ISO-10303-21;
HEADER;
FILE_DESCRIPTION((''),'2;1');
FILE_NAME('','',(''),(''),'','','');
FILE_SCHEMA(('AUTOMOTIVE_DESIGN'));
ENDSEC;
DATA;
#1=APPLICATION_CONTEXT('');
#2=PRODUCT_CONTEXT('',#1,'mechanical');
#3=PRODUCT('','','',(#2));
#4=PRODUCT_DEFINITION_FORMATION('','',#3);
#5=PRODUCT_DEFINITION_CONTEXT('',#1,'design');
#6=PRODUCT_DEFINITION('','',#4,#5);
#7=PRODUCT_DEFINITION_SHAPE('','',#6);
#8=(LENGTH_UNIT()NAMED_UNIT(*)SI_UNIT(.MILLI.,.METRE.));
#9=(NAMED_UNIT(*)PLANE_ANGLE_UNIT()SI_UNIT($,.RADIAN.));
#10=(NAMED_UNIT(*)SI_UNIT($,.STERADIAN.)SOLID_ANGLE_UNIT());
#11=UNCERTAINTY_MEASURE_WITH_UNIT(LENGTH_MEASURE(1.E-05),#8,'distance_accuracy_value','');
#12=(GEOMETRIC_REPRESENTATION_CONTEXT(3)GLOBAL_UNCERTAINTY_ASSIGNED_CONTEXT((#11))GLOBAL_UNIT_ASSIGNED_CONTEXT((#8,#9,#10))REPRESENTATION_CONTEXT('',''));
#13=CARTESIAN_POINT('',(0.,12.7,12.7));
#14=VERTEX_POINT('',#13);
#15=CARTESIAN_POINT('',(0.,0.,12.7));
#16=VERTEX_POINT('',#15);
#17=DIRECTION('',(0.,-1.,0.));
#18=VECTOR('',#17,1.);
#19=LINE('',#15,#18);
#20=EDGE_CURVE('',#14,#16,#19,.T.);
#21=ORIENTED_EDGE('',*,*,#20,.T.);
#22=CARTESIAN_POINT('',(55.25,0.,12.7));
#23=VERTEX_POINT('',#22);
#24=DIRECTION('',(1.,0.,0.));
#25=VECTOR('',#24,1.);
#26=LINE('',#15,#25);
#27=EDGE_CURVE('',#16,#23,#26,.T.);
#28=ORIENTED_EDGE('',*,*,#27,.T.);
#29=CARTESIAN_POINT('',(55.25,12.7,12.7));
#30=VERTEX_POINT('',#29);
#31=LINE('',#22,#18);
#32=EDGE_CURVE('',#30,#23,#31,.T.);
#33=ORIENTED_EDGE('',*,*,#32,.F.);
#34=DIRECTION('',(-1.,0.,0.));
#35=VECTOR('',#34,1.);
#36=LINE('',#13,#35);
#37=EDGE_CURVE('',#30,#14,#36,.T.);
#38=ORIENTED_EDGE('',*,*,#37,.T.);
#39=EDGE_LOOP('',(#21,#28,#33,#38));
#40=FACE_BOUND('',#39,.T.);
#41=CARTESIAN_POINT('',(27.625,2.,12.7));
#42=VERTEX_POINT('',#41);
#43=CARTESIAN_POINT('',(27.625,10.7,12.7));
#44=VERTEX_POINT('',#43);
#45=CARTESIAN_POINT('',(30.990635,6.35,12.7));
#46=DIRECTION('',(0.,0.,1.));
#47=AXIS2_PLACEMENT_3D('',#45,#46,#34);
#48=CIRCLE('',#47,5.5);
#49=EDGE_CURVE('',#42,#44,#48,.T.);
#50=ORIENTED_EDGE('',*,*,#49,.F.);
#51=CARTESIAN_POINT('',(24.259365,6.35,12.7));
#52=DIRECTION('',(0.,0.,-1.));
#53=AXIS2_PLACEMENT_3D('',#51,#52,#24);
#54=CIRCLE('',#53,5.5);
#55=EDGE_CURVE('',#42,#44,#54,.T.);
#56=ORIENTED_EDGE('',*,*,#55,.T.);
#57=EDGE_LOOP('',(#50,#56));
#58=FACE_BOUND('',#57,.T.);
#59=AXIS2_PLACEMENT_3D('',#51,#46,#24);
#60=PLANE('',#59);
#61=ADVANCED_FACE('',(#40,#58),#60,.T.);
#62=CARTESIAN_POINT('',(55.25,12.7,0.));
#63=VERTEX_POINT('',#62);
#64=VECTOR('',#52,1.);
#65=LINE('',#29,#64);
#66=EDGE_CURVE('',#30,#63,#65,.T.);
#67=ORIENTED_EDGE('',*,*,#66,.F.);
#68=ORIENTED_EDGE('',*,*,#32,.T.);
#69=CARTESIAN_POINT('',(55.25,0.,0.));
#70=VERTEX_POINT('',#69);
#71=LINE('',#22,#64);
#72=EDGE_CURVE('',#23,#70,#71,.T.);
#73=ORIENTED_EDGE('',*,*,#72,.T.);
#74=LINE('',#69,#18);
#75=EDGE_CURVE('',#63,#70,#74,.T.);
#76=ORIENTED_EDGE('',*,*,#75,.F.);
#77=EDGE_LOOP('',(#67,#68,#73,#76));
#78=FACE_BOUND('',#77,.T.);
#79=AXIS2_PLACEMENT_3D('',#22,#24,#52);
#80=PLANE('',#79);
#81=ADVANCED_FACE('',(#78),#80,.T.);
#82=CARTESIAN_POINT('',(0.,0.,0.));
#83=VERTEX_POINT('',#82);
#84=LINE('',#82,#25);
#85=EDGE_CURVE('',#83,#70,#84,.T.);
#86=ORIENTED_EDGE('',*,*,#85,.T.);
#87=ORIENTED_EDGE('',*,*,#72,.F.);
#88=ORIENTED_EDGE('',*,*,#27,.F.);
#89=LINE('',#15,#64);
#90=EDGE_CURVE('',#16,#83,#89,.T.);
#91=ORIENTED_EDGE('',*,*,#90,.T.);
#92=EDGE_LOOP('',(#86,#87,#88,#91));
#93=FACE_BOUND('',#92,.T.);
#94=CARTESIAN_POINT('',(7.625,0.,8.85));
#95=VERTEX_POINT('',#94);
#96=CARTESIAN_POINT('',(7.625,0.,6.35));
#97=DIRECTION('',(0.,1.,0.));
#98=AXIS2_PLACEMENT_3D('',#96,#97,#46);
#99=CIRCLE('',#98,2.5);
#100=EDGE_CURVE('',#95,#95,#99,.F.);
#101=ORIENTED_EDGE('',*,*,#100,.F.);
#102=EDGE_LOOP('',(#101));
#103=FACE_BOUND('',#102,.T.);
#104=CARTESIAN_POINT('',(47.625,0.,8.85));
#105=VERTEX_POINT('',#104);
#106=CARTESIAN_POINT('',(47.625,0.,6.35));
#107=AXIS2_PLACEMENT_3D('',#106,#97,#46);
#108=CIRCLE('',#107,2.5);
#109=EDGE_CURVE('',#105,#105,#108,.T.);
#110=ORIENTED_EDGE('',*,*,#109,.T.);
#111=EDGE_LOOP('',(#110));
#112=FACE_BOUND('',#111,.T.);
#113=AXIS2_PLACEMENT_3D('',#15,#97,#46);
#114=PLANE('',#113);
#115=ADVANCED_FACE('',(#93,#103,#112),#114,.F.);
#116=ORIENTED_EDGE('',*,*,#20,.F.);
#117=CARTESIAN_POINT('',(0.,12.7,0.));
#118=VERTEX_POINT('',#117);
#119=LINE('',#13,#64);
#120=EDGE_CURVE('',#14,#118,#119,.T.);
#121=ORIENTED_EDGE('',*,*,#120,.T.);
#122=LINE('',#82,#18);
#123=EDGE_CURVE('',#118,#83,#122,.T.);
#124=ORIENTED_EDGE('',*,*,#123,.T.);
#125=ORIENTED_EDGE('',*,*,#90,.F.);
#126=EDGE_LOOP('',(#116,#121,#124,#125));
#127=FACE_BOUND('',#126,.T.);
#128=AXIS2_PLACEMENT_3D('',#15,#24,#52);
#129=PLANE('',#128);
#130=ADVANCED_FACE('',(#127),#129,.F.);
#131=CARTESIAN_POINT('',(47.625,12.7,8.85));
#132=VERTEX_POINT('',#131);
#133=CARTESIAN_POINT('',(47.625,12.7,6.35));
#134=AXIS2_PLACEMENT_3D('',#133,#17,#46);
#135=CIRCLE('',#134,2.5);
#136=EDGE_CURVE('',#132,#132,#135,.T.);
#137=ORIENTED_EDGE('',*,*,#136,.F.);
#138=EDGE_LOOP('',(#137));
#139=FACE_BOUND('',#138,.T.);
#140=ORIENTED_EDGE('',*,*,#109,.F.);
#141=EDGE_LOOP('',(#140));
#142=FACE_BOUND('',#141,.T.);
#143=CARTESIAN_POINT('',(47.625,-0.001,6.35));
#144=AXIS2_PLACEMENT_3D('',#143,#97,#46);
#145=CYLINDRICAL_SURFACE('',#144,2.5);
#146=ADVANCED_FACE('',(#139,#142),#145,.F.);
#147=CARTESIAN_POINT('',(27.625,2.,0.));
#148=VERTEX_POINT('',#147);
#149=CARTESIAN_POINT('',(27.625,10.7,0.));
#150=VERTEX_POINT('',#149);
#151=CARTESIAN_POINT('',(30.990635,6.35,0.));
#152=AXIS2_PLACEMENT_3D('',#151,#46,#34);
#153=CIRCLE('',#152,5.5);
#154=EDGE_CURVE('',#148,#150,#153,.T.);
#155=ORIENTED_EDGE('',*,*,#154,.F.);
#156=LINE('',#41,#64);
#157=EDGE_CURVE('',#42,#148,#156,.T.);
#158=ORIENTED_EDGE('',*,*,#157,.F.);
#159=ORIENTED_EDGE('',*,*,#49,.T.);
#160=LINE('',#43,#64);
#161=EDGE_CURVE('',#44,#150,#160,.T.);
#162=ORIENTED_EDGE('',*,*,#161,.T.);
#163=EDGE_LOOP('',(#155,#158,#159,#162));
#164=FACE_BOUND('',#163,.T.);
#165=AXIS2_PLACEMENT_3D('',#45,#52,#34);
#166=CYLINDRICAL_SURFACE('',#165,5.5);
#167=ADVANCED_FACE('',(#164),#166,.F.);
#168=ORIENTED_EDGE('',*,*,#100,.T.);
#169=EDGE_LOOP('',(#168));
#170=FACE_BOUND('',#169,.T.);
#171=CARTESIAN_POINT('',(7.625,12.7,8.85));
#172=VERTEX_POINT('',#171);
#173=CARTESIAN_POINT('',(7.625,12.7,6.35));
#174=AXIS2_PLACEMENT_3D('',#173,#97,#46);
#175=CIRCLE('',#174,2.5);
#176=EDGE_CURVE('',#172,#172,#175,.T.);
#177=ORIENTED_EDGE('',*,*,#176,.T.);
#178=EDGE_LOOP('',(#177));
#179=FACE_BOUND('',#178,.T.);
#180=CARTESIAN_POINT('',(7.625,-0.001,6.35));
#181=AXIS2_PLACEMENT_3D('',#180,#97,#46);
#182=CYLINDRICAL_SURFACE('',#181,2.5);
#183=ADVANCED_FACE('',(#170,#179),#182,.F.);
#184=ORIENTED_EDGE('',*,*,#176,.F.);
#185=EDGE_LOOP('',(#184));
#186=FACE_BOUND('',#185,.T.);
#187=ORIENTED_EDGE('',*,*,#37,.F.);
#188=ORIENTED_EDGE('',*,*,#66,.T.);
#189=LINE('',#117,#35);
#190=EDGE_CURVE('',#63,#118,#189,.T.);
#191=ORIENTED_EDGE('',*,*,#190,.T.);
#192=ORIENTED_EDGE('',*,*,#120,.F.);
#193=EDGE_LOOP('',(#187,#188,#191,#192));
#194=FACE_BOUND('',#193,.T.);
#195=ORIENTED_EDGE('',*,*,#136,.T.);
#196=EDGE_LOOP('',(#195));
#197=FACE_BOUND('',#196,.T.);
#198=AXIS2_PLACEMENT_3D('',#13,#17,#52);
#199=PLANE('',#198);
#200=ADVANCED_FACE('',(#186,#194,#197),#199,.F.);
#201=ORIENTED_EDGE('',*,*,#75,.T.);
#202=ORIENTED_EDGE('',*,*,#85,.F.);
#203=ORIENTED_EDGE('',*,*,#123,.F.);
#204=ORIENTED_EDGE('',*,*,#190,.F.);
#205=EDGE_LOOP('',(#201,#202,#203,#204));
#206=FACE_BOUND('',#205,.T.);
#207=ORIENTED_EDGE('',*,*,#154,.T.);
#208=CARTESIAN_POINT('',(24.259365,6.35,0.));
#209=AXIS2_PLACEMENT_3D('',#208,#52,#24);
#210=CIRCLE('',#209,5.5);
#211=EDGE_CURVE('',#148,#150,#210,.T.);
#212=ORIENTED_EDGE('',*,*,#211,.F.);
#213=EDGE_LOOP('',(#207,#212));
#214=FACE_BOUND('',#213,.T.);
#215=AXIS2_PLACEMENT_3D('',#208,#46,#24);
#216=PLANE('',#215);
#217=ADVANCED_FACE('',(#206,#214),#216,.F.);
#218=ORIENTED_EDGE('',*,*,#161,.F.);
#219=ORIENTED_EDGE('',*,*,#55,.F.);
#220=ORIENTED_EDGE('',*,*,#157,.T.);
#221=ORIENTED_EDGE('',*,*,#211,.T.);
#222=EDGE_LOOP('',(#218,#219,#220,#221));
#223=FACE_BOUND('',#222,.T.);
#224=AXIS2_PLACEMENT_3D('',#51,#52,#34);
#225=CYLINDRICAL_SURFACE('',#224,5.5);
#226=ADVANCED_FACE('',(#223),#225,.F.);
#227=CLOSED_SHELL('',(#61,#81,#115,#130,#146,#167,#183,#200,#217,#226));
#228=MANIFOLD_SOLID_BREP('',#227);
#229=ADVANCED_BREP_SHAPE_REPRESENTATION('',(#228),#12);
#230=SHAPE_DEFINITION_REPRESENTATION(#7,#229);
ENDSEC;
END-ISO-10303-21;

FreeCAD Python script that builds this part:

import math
import FreeCAD as App
import Part
import Sketcher
Q = App.Units.Quantity

doc = App.newDocument("Part")
body = doc.addObject("PartDesign::Body", "Body")

# Sketch on XY plane
sketch1 = doc.addObject("Sketcher::SketchObject", "Sketch")
body.addObject(sketch1)
sketch1.AttachmentSupport = (doc.XY_Plane, [""])
sketch1.MapMode = "FlatFace"
sketch1.addGeometry([
    Part.LineSegment(App.Vector(0, 0, 0), App.Vector(27.6, 0, 0)),  # 0
    Part.LineSegment(App.Vector(27.6, 0, 0), App.Vector(27.6, 2, 0)),  # 1
    Part.ArcOfCircle(Part.Circle(App.Vector(24.3, 6.3, 0), App.Vector(0, 0, 1), 5.5), math.radians(52), math.radians(308)),  # 2
    Part.LineSegment(App.Vector(27.6, 10.7, 0), App.Vector(27.6, 12.7, 0)),  # 3
    Part.LineSegment(App.Vector(27.6, 12.7, 0), App.Vector(0, 12.7, 0)),  # 4
    Part.LineSegment(App.Vector(0, 12.7, 0), App.Vector(0, 0, 0)),  # 5
], False)
sketch1.addConstraint([
    Sketcher.Constraint("Coincident", 0, 2, 1, 1),
    Sketcher.Constraint("Coincident", 1, 2, 2, 2),
    Sketcher.Constraint("Coincident", 2, 1, 3, 1),
    Sketcher.Constraint("Coincident", 3, 2, 4, 1),
    Sketcher.Constraint("Coincident", 4, 2, 5, 1),
    Sketcher.Constraint("Coincident", 5, 2, 0, 1),
    Sketcher.Constraint("Horizontal", 0),
    Sketcher.Constraint("Vertical", 1),
    Sketcher.Constraint("Vertical", 3),
    Sketcher.Constraint("Horizontal", 4),
    Sketcher.Constraint("Vertical", 5),
    Sketcher.Constraint("Coincident", 5, 2, -1, 1),
    Sketcher.Constraint("Vertical", 1, 2, 2, 1),
    Sketcher.Constraint("Equal", 1, 3),
    Sketcher.Constraint("Radius", 2, Q("5.5 mm")),
    Sketcher.Constraint("DistanceY", 1, 1, 1, 2, Q("2 mm")),
    Sketcher.Constraint("DistanceY", 5, 2, 5, 1, Q("12.7 mm")),
    Sketcher.Constraint("DistanceX", 0, 1, 0, 2, Q("27.625 mm")),
])
pad1 = doc.addObject("PartDesign::Pad", "Pad")
body.addObject(pad1)
pad1.Profile = sketch1
pad1.Length = 12.7

# Sketch on XZ plane
sketch2 = doc.addObject("Sketcher::SketchObject", "Sketch001")
body.addObject(sketch2)
sketch2.AttachmentSupport = (doc.XZ_Plane, [""])
sketch2.MapMode = "FlatFace"
sketch2.AttachmentOffset = App.Placement(App.Vector(0, 0, -12.7), App.Rotation())
sketch2.addGeometry(Part.Circle(App.Vector(7.6, 6.3, 0), App.Vector(0, 0, 1), 2.5), False)
sketch2.addConstraint([
    Sketcher.Constraint("Diameter", 0, Q("5 mm")),
    Sketcher.Constraint("DistanceY", -1, 1, 0, 3, Q("6.35 mm")),
    Sketcher.Constraint("DistanceX", -1, 1, 0, 3, Q("7.625 mm")),
])
pocket1 = doc.addObject("PartDesign::Pocket", "Pocket")
body.addObject(pocket1)
pocket1.Profile = sketch2
pocket1.Length = 12.7
pocket1.Reversed = True
doc.recompute()

datumplane = doc.addObject("PartDesign::Plane", "DatumPlane")
body.addObject(datumplane)
datumplane.AttachmentSupport = (doc.YZ_Plane, [""])
datumplane.MapMode = "FlatFace"
datumplane.AttachmentOffset = App.Placement(App.Vector(0, 0, 27.625), App.Rotation())
mirrored = doc.addObject("PartDesign::Mirrored", "Mirrored")
body.addObject(mirrored)
mirrored.Originals = [pad1, pocket1]
mirrored.MirrorPlane = (datumplane, [""])
body.Tip = mirrored

doc.recompute()
